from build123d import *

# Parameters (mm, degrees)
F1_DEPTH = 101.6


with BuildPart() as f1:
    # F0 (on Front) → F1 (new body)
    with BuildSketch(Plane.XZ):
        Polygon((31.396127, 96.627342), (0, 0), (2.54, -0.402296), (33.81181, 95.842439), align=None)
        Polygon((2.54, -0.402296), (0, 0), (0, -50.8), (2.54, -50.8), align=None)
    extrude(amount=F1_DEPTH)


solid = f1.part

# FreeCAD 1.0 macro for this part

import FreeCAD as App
import Part
import Sketcher

V = App.Vector
Q = App.Units.Quantity

doc = App.newDocument("Part")
params = doc.addObject("Spreadsheet::Sheet", "Params")
for row, (alias, value) in enumerate([
    ("sketch1_height", "2 in"),
    ("sketch1_length", "4 in"),
    ("sketch1_width", "0.1 in"),
    ("sketch1_length2", "0.1 in"),
    ("pad1_length", "4 in"),
], start=1):
    params.set(f"A{row}", alias)
    params.set(f"B{row}", "=" + value)
    params.setAlias(f"B{row}", alias)

body = doc.addObject("PartDesign::Body", "Body")

# Sketch on XZ plane
sketch1 = body.newObject("Sketcher::SketchObject", "Sketch")
sketch1.AttachmentSupport = (doc.getObject("XZ_Plane"), [""])
sketch1.MapMode = "FlatFace"
sketch1.addGeometry([
    Part.LineSegment(V(33.8, 95.8, 0), V(31.4, 96.6, 0)),  # 0
    Part.LineSegment(V(31.4, 96.6, 0), V(0, 0, 0)),  # 1
    Part.LineSegment(V(0, 0, 0), V(0, -50.8, 0)),  # 2
    Part.LineSegment(V(0, -50.8, 0), V(2.5, -50.8, 0)),  # 3
    Part.LineSegment(V(2.5, -50.8, 0), V(2.5, -0.4, 0)),  # 4
    Part.LineSegment(V(2.5, -0.4, 0), V(33.8, 95.8, 0)),  # 5
], False)
sketch1.addConstraint([
    Sketcher.Constraint("Coincident", 0, 2, 1, 1),
    Sketcher.Constraint("Coincident", 1, 2, 2, 1),
    Sketcher.Constraint("Coincident", 2, 2, 3, 1),
    Sketcher.Constraint("Coincident", 3, 2, 4, 1),
    Sketcher.Constraint("Coincident", 4, 2, 5, 1),
    Sketcher.Constraint("Coincident", 5, 2, 0, 1),
    Sketcher.Constraint("Vertical", 2),
    Sketcher.Constraint("Horizontal", 3),
    Sketcher.Constraint("Vertical", 4),
    Sketcher.Constraint("Coincident", 1, 2, -1, 1),
    Sketcher.Constraint("Perpendicular", 0, 1),
    Sketcher.Constraint("Parallel", 1, 5),
    Sketcher.Constraint("DistanceY", 2, 2, 2, 1, Q("2 in")),
    Sketcher.Constraint("Distance", 1, Q("4 in")),
    Sketcher.Constraint("DistanceX", 3, 1, 3, 2, Q("0.1 in")),
    Sketcher.Constraint("Angle", 0, Q("162 deg")),
    Sketcher.Constraint("Distance", 0, Q("0.1 in")),
])
sketch1.setExpression("Constraints[12]", "Params.sketch1_height")
sketch1.setExpression("Constraints[13]", "Params.sketch1_length")
sketch1.setExpression("Constraints[14]", "Params.sketch1_width")
sketch1.setExpression("Constraints[16]", "Params.sketch1_length2")
pad1 = body.newObject("PartDesign::Pad", "Pad")
pad1.Profile = sketch1
pad1.setExpression("Length", "Params.pad1_length")

doc.recompute()
